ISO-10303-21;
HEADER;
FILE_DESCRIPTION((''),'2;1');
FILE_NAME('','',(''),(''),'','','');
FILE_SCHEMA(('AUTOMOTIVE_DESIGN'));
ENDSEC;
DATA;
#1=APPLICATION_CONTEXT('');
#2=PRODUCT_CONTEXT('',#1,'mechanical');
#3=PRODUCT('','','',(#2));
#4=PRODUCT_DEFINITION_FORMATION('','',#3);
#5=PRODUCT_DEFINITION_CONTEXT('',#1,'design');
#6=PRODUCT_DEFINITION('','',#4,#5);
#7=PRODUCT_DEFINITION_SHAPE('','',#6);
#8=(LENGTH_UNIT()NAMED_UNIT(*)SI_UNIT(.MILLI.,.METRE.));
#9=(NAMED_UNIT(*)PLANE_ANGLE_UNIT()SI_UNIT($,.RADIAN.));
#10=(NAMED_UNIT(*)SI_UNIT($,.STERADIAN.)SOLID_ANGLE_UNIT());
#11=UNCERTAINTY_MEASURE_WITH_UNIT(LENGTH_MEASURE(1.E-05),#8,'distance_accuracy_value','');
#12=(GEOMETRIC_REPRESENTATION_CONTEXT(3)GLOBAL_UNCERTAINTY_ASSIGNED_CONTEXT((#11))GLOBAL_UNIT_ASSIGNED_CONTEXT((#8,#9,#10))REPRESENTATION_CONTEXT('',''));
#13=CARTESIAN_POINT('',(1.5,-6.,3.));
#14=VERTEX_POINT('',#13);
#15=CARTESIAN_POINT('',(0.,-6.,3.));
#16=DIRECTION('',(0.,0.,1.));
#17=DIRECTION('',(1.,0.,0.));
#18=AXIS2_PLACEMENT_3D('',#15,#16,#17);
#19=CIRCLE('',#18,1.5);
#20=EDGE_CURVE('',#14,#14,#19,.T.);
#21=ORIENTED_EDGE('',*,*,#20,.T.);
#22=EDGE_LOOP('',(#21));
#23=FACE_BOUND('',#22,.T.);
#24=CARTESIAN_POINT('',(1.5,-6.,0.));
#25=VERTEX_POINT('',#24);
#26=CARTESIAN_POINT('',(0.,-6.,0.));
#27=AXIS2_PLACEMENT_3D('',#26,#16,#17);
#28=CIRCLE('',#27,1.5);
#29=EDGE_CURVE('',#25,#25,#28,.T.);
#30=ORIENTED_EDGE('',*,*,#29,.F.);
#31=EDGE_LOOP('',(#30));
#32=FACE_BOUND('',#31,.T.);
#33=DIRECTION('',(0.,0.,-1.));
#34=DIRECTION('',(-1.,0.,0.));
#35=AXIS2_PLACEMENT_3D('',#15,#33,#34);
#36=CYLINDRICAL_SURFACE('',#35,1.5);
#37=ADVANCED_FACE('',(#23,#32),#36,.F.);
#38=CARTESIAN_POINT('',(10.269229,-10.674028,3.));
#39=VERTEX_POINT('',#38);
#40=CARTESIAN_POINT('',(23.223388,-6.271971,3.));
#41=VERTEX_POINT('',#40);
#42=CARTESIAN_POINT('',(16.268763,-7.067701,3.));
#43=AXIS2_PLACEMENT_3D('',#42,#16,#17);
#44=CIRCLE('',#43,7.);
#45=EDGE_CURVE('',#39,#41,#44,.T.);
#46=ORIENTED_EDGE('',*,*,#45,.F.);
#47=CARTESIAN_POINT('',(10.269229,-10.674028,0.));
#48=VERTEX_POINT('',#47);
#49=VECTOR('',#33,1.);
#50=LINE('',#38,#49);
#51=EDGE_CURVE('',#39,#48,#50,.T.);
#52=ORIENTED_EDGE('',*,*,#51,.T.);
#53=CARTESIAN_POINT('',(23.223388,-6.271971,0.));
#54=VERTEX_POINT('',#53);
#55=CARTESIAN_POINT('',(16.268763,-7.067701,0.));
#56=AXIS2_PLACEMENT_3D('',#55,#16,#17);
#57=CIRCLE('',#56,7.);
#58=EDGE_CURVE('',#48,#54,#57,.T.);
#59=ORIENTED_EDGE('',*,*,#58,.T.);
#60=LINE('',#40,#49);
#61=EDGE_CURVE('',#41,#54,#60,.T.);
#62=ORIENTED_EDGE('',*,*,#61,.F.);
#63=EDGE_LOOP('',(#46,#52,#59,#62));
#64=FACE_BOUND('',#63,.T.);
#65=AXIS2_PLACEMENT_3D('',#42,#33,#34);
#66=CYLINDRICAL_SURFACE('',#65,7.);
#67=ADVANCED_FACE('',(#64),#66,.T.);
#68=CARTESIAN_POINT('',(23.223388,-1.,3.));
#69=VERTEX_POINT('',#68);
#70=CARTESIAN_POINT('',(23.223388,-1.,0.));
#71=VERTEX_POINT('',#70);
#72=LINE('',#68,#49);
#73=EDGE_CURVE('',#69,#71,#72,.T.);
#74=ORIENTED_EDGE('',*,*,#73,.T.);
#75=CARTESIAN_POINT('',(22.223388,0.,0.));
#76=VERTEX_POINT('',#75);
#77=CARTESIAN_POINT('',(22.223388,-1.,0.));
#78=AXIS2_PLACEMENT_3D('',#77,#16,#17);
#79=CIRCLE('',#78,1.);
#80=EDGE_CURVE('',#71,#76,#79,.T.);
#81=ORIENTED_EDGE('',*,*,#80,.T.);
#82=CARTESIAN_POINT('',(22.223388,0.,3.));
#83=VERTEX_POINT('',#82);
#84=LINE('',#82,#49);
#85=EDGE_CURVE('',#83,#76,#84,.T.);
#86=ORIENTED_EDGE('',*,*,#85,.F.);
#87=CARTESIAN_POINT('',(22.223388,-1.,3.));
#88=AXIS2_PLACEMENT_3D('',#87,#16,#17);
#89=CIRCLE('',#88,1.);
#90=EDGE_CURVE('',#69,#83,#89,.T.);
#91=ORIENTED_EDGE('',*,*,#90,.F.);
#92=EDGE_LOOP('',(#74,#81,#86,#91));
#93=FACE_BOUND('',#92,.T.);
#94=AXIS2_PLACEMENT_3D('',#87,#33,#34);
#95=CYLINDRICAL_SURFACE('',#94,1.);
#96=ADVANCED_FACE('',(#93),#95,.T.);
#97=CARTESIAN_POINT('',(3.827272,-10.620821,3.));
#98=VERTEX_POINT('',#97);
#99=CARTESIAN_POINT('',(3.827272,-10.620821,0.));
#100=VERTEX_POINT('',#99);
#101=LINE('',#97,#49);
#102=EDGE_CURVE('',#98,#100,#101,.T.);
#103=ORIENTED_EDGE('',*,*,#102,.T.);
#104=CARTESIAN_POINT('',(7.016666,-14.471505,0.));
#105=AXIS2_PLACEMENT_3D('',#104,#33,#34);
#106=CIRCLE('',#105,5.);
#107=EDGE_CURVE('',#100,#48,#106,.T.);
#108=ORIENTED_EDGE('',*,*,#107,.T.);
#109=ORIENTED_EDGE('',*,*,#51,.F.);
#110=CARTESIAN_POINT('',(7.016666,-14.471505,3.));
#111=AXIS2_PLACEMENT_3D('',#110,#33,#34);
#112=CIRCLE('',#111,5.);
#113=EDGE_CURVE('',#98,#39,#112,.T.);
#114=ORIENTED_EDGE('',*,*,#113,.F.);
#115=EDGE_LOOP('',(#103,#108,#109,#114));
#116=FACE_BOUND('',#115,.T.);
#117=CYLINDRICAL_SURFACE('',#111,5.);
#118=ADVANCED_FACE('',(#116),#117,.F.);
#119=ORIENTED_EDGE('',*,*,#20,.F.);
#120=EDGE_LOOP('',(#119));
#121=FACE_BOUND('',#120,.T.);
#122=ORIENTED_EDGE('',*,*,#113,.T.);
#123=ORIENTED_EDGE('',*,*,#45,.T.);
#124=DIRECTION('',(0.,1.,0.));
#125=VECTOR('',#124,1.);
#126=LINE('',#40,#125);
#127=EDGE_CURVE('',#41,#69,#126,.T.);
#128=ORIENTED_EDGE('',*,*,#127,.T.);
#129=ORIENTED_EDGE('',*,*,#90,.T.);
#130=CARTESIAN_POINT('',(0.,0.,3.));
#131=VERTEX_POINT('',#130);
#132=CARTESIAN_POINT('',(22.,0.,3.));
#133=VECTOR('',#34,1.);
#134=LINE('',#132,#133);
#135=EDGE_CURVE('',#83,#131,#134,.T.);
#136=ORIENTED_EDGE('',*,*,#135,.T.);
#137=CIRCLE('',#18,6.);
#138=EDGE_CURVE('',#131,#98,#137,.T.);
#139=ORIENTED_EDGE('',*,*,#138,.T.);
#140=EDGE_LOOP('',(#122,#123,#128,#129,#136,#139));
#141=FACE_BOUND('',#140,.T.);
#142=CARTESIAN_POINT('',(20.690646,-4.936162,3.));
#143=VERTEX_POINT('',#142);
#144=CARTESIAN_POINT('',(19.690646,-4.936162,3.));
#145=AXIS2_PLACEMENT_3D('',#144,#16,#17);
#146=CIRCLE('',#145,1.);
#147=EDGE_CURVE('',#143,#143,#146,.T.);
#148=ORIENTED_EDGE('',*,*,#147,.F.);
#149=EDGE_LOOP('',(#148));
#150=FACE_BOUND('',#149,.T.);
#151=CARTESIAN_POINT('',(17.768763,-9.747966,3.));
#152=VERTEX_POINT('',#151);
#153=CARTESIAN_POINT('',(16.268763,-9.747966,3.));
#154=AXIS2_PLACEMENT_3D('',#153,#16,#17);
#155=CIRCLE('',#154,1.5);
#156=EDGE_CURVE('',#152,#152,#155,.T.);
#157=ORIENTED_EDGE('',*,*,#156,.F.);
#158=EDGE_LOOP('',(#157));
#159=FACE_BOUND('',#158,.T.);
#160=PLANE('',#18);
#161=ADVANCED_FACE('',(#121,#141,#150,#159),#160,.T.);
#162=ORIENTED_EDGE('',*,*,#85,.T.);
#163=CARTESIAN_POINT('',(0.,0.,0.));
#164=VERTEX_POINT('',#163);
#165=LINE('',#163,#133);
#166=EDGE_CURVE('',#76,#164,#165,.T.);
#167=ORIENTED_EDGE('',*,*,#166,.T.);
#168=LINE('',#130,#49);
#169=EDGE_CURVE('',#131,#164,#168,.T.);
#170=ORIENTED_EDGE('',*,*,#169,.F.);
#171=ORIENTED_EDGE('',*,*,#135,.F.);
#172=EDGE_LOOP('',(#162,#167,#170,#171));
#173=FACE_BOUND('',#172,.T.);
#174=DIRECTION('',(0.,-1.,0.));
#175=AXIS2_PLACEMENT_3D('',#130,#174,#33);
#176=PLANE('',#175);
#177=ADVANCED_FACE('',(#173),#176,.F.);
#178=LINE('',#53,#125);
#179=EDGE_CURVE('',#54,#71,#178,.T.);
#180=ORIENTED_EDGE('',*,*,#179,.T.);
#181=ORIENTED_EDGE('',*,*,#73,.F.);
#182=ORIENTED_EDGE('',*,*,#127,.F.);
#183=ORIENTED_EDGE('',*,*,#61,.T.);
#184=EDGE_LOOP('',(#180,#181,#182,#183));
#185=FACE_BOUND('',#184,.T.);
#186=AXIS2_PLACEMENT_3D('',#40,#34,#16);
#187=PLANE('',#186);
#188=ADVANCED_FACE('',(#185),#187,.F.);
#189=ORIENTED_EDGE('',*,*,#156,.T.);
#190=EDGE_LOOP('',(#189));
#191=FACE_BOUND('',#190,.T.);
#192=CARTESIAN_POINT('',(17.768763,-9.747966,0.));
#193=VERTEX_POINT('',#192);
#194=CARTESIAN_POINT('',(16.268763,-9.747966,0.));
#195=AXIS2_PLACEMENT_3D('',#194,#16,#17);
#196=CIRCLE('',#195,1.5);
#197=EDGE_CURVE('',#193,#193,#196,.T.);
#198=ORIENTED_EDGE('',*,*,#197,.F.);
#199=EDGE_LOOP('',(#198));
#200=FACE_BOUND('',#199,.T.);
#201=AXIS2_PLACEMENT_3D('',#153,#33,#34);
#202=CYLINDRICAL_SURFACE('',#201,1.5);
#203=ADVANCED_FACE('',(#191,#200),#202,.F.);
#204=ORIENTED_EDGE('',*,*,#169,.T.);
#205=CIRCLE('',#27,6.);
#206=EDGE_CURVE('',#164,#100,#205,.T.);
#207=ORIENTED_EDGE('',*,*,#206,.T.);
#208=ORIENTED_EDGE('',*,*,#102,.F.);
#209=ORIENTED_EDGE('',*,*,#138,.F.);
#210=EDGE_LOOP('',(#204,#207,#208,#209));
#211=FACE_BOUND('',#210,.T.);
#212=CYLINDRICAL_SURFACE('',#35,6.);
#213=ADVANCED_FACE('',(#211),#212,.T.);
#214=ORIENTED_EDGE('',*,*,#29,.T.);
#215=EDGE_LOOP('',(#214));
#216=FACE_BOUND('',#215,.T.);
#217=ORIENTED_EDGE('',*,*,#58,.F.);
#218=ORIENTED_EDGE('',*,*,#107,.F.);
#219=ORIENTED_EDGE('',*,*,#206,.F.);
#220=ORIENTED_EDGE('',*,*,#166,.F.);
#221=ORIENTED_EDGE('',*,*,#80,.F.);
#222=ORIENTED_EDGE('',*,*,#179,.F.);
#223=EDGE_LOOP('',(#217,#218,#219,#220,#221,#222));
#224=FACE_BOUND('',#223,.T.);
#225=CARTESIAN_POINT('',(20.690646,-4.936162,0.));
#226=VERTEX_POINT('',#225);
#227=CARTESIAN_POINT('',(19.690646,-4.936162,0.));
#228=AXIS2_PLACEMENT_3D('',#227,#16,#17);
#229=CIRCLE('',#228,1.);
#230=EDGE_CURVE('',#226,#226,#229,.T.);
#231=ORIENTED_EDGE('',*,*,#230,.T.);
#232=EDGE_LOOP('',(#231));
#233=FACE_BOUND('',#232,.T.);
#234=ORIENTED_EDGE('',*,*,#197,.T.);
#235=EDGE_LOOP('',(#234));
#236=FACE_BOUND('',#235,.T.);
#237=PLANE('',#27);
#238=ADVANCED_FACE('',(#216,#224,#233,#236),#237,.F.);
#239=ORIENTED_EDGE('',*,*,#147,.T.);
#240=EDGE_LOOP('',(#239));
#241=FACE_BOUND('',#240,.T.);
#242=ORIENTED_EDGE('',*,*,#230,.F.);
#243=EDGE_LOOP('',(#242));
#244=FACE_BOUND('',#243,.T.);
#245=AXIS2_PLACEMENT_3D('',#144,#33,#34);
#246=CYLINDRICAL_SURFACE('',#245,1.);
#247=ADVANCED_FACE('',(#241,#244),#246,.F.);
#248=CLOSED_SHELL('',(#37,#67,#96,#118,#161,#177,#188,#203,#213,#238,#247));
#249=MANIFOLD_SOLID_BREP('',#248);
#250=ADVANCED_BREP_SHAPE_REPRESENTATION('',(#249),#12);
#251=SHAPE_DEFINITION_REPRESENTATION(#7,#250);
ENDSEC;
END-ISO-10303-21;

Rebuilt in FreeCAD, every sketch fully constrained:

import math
import FreeCAD as App
import Part
import Sketcher
from FreeCAD import Vector

doc = App.newDocument("Part")
params = doc.addObject("Spreadsheet::Sheet", "Params")
for row, (alias, value) in enumerate([
    ("sketch1_diameter", "3 mm"),
    ("sketch1_diameter2", "2 mm"),
    ("sketch1_radius", "6 mm"),
    ("sketch1_radius2", "5 mm"),
    ("sketch1_radius3", "7 mm"),
    ("pad1_length", "3 mm"),
], start=1):
    params.set(f"A{row}", alias)
    params.set(f"B{row}", "=" + value)
    params.setAlias(f"B{row}", alias)

body = doc.addObject("PartDesign::Body", "Body")

# Sketch on XY plane
sketch1 = body.newObject("Sketcher::SketchObject", "Sketch")
sketch1.AttachmentSupport = (doc.getObject("XY_Plane"), [""])
sketch1.MapMode = "FlatFace"
sketch1.addGeometry(Part.LineSegment(Vector(22.2, 0, 0), Vector(0, 0, 0)), False)
sketch1.addGeometry(Part.ArcOfCircle(Part.Circle(Vector(0, -6, 0), Vector(0, 0, 1), 6), math.radians(90), math.radians(310)), False)
sketch1.addGeometry(Part.ArcOfCircle(Part.Circle(Vector(7, -14.5, 0), Vector(0, 0, 1), 5), math.radians(49), math.radians(130)), False)
sketch1.addGeometry(Part.ArcOfCircle(Part.Circle(Vector(16.3, -7.1, 0), Vector(0, 0, 1), 7), math.radians(-149), math.radians(7)), False)
sketch1.addGeometry(Part.LineSegment(Vector(23.2, -6.3, 0), Vector(23.2, -1, 0)), False)
sketch1.addGeometry(Part.ArcOfCircle(Part.Circle(Vector(22.2, -1, 0), Vector(0, 0, 1), 1), math.radians(0), math.radians(90)), False)
sketch1.addGeometry(Part.Circle(Vector(16.3, -9.7, 0), Vector(0, 0, 1), 1.5), False)
sketch1.addGeometry(Part.Circle(Vector(19.7, -4.9, 0), Vector(0, 0, 1), 1), False)
sketch1.addGeometry(Part.Circle(Vector(0, -6, 0), Vector(0, 0, 1), 1.5), False)
sketch1.addConstraint(Sketcher.Constraint("Tangent", 0, 2, 1, 1))
sketch1.addConstraint(Sketcher.Constraint("Tangent", 1, 2, 2, 2))
sketch1.addConstraint(Sketcher.Constraint("Coincident", 2, 1, 3, 1))
sketch1.addConstraint(Sketcher.Constraint("Coincident", 3, 2, 4, 1))
sketch1.addConstraint(Sketcher.Constraint("Tangent", 4, 2, 5, 1))
sketch1.addConstraint(Sketcher.Constraint("Tangent", 5, 2, 0, 1))
sketch1.addConstraint(Sketcher.Constraint("Horizontal", 0))
sketch1.addConstraint(Sketcher.Constraint("Vertical", 4))
sketch1.addConstraint(Sketcher.Constraint("Coincident", 0, 2, -1, 1))
sketch1.addConstraint(Sketcher.Constraint("Coincident", 8, 3, 1, 3))
sketch1.addConstraint(Sketcher.Constraint("Equal", 5, 7))
sketch1.addConstraint(Sketcher.Constraint("Equal", 6, 8))
sketch1.addConstraint(Sketcher.Constraint("Vertical", 3, 3, 6, 3))
sketch1.addConstraint(Sketcher.Constraint("Diameter", 6, 3.0))
sketch1.addConstraint(Sketcher.Constraint("Diameter", 7, 2.0))
sketch1.addConstraint(Sketcher.Constraint("Radius", 1, 6.0))
sketch1.addConstraint(Sketcher.Constraint("Radius", 2, 5.0))
sketch1.addConstraint(Sketcher.Constraint("Radius", 3, 7.0))
sketch1.addConstraint(Sketcher.Constraint("DistanceX", 0, 2, 0, 1, 22.223388))
sketch1.addConstraint(Sketcher.Constraint("DistanceY", 4, 1, 4, 2, 5.271971))
sketch1.addConstraint(Sketcher.Constraint("DistanceY", 3, 3, -1, 1, 7.067701))
sketch1.addConstraint(Sketcher.Constraint("DistanceY", 1, 2, -1, 1, 10.620821))
sketch1.addConstraint(Sketcher.Constraint("DistanceY", 2, 3, 6, 3, 4.723539))
sketch1.addConstraint(Sketcher.Constraint("DistanceY", 3, 3, 7, 3, 2.131538))
sketch1.addConstraint(Sketcher.Constraint("DistanceX", 2, 3, 7, 3, 12.67398))
sketch1.setExpression("Constraints[13]", "Params.sketch1_diameter")
sketch1.setExpression("Constraints[14]", "Params.sketch1_diameter2")
sketch1.setExpression("Constraints[15]", "Params.sketch1_radius")
sketch1.setExpression("Constraints[16]", "Params.sketch1_radius2")
sketch1.setExpression("Constraints[17]", "Params.sketch1_radius3")
pad1 = body.newObject("PartDesign::Pad", "Pad")
pad1.Profile = sketch1
pad1.setExpression("Length", "Params.pad1_length")

doc.recompute()
